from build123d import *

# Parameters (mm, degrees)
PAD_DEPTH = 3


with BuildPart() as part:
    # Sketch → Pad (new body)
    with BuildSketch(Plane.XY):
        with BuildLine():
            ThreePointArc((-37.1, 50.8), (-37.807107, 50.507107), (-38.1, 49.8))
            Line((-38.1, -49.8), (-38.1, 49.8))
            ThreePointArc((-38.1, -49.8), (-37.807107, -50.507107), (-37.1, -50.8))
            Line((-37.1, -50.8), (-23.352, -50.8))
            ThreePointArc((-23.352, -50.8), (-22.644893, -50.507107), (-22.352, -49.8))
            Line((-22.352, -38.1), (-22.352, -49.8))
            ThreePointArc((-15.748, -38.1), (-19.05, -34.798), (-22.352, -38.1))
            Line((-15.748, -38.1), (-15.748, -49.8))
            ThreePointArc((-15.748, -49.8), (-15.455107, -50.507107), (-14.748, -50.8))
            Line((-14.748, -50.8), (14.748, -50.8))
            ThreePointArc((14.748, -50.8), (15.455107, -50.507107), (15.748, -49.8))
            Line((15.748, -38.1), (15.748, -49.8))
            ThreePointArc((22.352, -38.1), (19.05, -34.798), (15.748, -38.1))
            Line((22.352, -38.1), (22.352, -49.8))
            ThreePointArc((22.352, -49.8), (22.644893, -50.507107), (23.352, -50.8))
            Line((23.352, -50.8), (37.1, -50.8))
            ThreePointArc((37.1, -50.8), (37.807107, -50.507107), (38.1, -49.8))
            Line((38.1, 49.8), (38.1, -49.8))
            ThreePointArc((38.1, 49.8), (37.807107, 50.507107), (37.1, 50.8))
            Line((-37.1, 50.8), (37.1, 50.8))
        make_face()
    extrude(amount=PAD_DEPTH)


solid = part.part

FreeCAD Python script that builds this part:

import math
import FreeCAD as App
import Part
import Sketcher

V = App.Vector
Q = App.Units.Quantity

doc = App.newDocument("Part")
params = doc.addObject("Spreadsheet::Sheet", "Params")
for row, (alias, value) in enumerate([
    ("sketch1_radius", "0.999999 mm"),
    ("sketch1_width", "74.2 mm"),
    ("sketch1_height", "99.6 mm"),
    ("sketch1_height2", "11.7 mm"),
    ("pad1_length", "3 mm"),
], start=1):
    params.set(f"A{row}", alias)
    params.set(f"B{row}", "=" + value)
    params.setAlias(f"B{row}", alias)

body = doc.addObject("PartDesign::Body", "Body")

sketch1 = doc.addObject("Sketcher::SketchObject", "Sketch")
body.addObject(sketch1)
sketch1.AttachmentSupport = (doc.XY_Plane, [""])
sketch1.MapMode = "FlatFace"
sketch1.addGeometry([
    Part.ArcOfCircle(Part.Circle(V(-37.100001, 49.800001, 0), V(0, 0, 1), 0.999999), math.radians(89.999957), math.radians(180.000043)),
    Part.LineSegment(V(-38.1, 49.8, 0), V(-38.1, -49.8, 0)),
    Part.ArcOfCircle(Part.Circle(V(-37.100001, -49.800001, 0), V(0, 0, 1), 0.999999), math.radians(179.999957), math.radians(270.000043)),
    Part.LineSegment(V(-37.1, -50.8, 0), V(-23.352, -50.8, 0)),
    Part.ArcOfCircle(Part.Circle(V(-23.351999, -49.800001, 0), V(0, 0, 1), 0.999999), math.radians(-90.000043), math.radians(0.000043)),
    Part.LineSegment(V(-22.352, -49.8, 0), V(-22.352, -38.1, 0)),
    Part.ArcOfCircle(Part.Circle(V(-19.05, -38.1, 0), V(0, 0, 1), 3.302), math.radians(0), math.radians(180)),
    Part.LineSegment(V(-15.748, -38.1, 0), V(-15.748, -49.8, 0)),
    Part.ArcOfCircle(Part.Circle(V(-14.748001, -49.800001, 0), V(0, 0, 1), 0.999999), math.radians(179.999957), math.radians(270.000043)),
    Part.LineSegment(V(-14.748, -50.8, 0), V(14.748, -50.8, 0)),
    Part.ArcOfCircle(Part.Circle(V(14.748001, -49.800001, 0), V(0, 0, 1), 0.999999), math.radians(-90.000043), math.radians(0.000043)),
    Part.LineSegment(V(15.748, -49.8, 0), V(15.748, -38.1, 0)),
    Part.ArcOfCircle(Part.Circle(V(19.05, -38.1, 0), V(0, 0, 1), 3.302), math.radians(0), math.radians(180)),
    Part.LineSegment(V(22.352, -38.1, 0), V(22.352, -49.8, 0)),
    Part.ArcOfCircle(Part.Circle(V(23.351999, -49.800001, 0), V(0, 0, 1), 0.999999), math.radians(179.999957), math.radians(270.000043)),
    Part.LineSegment(V(23.352, -50.8, 0), V(37.1, -50.8, 0)),
    Part.ArcOfCircle(Part.Circle(V(37.100001, -49.800001, 0), V(0, 0, 1), 0.999999), math.radians(-90.000043), math.radians(0.000043)),
    Part.LineSegment(V(38.1, -49.8, 0), V(38.1, 49.8, 0)),
    Part.ArcOfCircle(Part.Circle(V(37.100001, 49.800001, 0), V(0, 0, 1), 0.999999), math.radians(-0.000043), math.radians(90.000043)),
    Part.LineSegment(V(37.1, 50.8, 0), V(-37.1, 50.8, 0)),
], False)
sketch1.addConstraint([
    Sketcher.Constraint("Tangent", 0, 2, 1, 1),
    Sketcher.Constraint("Tangent", 1, 2, 2, 1),
    Sketcher.Constraint("Tangent", 2, 2, 3, 1),
    Sketcher.Constraint("Tangent", 3, 2, 4, 1),
    Sketcher.Constraint("Tangent", 4, 2, 5, 1),
    Sketcher.Constraint("Tangent", 5, 2, 6, 2),
    Sketcher.Constraint("Tangent", 6, 1, 7, 1),
    Sketcher.Constraint("Tangent", 7, 2, 8, 1),
    Sketcher.Constraint("Tangent", 8, 2, 9, 1),
    Sketcher.Constraint("Tangent", 9, 2, 10, 1),
    Sketcher.Constraint("Tangent", 10, 2, 11, 1),
    Sketcher.Constraint("Tangent", 11, 2, 12, 2),
    Sketcher.Constraint("Tangent", 12, 1, 13, 1),
    Sketcher.Constraint("Tangent", 13, 2, 14, 1),
    Sketcher.Constraint("Tangent", 14, 2, 15, 1),
    Sketcher.Constraint("Tangent", 15, 2, 16, 1),
    Sketcher.Constraint("Tangent", 16, 2, 17, 1),
    Sketcher.Constraint("Tangent", 17, 2, 18, 1),
    Sketcher.Constraint("Tangent", 18, 2, 19, 1),
    Sketcher.Constraint("Tangent", 19, 2, 0, 1),
    Sketcher.Constraint("Vertical", 1),
    Sketcher.Constraint("Horizontal", 3),
    Sketcher.Constraint("Vertical", 5),
    Sketcher.Constraint("Vertical", 7),
    Sketcher.Constraint("Horizontal", 9),
    Sketcher.Constraint("Vertical", 11),
    Sketcher.Constraint("Vertical", 13),
    Sketcher.Constraint("Horizontal", 15),
    Sketcher.Constraint("Vertical", 17),
    Sketcher.Constraint("Horizontal", 19),
    Sketcher.Constraint("Equal", 0, 2),
    Sketcher.Constraint("Equal", 2, 4),
    Sketcher.Constraint("Equal", 4, 8),
    Sketcher.Constraint("Equal", 8, 10),
    Sketcher.Constraint("Equal", 6, 12),
    Sketcher.Constraint("Equal", 10, 14),
    Sketcher.Constraint("Equal", 14, 16),
    Sketcher.Constraint("Equal", 16, 18),
    Sketcher.Constraint("Symmetric", 0, 3, 16, 3, -1, 1),
    Sketcher.Constraint("Symmetric", 6, 3, 12, 3, -2),
    Sketcher.Constraint("Horizontal", 4, 3, 8, 3),
    Sketcher.Constraint("Horizontal", 10, 3, 14, 3),
    Sketcher.Constraint("Radius", 0, Q("0.999999 mm")),
    Sketcher.Constraint("DistanceX", 19, 2, 19, 1, Q("74.2 mm")),
    Sketcher.Constraint("DistanceY", 1, 2, 1, 1, Q("99.6 mm")),
    Sketcher.Constraint("DistanceY", 5, 1, 5, 2, Q("11.7 mm")),
    Sketcher.Constraint("Radius", 6, Q("3.302 mm")),
    Sketcher.Constraint("DistanceX", 4, 3, 10, 3, Q("38.1 mm")),
])
sketch1.setExpression("Constraints[42]", "Params.sketch1_radius")
sketch1.setExpression("Constraints[43]", "Params.sketch1_width")
sketch1.setExpression("Constraints[44]", "Params.sketch1_height")
sketch1.setExpression("Constraints[45]", "Params.sketch1_height2")
pad1 = doc.addObject("PartDesign::Pad", "Pad")
body.addObject(pad1)
pad1.Profile = sketch1
pad1.setExpression("Length", "Params.pad1_length")

doc.recompute()
